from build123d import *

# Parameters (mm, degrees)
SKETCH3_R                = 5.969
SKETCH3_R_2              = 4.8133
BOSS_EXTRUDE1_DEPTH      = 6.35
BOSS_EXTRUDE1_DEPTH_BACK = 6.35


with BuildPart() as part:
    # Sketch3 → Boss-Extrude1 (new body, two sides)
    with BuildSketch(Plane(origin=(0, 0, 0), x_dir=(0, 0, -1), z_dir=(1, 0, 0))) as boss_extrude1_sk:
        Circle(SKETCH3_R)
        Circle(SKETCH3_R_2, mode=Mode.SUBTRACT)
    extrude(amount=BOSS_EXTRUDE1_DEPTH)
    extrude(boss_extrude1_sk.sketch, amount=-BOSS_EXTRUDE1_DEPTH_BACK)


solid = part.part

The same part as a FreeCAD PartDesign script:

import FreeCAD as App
import Part
import Sketcher

V = App.Vector
Q = App.Units.Quantity

doc = App.newDocument("Part")
body = doc.addObject("PartDesign::Body", "Body")

# Sketch on YZ plane
sketch1 = doc.addObject("Sketcher::SketchObject", "Sketch")
body.addObject(sketch1)
sketch1.AttachmentSupport = (doc.YZ_Plane, [""])
sketch1.MapMode = "FlatFace"
sketch1.addGeometry([
    Part.Circle(V(0, 0, 0), V(0, 0, 1), 6),
    Part.Circle(V(0, 0, 0), V(0, 0, 1), 4.8),
], False)
sketch1.addConstraint([
    Sketcher.Constraint("Coincident", 0, 3, -1, 1),
    Sketcher.Constraint("Coincident", 1, 3, -1, 1),
    Sketcher.Constraint("Diameter", 0, Q("0.47 in")),
    Sketcher.Constraint("Diameter", 1, Q("0.379 in")),
])
pad1 = doc.addObject("PartDesign::Pad", "Pad")
body.addObject(pad1)
pad1.Profile = sketch1
pad1.Type = "TwoLengths"
pad1.Length = Q("0.25 in")
pad1.Length2 = Q("0.25 in")

doc.recompute()
